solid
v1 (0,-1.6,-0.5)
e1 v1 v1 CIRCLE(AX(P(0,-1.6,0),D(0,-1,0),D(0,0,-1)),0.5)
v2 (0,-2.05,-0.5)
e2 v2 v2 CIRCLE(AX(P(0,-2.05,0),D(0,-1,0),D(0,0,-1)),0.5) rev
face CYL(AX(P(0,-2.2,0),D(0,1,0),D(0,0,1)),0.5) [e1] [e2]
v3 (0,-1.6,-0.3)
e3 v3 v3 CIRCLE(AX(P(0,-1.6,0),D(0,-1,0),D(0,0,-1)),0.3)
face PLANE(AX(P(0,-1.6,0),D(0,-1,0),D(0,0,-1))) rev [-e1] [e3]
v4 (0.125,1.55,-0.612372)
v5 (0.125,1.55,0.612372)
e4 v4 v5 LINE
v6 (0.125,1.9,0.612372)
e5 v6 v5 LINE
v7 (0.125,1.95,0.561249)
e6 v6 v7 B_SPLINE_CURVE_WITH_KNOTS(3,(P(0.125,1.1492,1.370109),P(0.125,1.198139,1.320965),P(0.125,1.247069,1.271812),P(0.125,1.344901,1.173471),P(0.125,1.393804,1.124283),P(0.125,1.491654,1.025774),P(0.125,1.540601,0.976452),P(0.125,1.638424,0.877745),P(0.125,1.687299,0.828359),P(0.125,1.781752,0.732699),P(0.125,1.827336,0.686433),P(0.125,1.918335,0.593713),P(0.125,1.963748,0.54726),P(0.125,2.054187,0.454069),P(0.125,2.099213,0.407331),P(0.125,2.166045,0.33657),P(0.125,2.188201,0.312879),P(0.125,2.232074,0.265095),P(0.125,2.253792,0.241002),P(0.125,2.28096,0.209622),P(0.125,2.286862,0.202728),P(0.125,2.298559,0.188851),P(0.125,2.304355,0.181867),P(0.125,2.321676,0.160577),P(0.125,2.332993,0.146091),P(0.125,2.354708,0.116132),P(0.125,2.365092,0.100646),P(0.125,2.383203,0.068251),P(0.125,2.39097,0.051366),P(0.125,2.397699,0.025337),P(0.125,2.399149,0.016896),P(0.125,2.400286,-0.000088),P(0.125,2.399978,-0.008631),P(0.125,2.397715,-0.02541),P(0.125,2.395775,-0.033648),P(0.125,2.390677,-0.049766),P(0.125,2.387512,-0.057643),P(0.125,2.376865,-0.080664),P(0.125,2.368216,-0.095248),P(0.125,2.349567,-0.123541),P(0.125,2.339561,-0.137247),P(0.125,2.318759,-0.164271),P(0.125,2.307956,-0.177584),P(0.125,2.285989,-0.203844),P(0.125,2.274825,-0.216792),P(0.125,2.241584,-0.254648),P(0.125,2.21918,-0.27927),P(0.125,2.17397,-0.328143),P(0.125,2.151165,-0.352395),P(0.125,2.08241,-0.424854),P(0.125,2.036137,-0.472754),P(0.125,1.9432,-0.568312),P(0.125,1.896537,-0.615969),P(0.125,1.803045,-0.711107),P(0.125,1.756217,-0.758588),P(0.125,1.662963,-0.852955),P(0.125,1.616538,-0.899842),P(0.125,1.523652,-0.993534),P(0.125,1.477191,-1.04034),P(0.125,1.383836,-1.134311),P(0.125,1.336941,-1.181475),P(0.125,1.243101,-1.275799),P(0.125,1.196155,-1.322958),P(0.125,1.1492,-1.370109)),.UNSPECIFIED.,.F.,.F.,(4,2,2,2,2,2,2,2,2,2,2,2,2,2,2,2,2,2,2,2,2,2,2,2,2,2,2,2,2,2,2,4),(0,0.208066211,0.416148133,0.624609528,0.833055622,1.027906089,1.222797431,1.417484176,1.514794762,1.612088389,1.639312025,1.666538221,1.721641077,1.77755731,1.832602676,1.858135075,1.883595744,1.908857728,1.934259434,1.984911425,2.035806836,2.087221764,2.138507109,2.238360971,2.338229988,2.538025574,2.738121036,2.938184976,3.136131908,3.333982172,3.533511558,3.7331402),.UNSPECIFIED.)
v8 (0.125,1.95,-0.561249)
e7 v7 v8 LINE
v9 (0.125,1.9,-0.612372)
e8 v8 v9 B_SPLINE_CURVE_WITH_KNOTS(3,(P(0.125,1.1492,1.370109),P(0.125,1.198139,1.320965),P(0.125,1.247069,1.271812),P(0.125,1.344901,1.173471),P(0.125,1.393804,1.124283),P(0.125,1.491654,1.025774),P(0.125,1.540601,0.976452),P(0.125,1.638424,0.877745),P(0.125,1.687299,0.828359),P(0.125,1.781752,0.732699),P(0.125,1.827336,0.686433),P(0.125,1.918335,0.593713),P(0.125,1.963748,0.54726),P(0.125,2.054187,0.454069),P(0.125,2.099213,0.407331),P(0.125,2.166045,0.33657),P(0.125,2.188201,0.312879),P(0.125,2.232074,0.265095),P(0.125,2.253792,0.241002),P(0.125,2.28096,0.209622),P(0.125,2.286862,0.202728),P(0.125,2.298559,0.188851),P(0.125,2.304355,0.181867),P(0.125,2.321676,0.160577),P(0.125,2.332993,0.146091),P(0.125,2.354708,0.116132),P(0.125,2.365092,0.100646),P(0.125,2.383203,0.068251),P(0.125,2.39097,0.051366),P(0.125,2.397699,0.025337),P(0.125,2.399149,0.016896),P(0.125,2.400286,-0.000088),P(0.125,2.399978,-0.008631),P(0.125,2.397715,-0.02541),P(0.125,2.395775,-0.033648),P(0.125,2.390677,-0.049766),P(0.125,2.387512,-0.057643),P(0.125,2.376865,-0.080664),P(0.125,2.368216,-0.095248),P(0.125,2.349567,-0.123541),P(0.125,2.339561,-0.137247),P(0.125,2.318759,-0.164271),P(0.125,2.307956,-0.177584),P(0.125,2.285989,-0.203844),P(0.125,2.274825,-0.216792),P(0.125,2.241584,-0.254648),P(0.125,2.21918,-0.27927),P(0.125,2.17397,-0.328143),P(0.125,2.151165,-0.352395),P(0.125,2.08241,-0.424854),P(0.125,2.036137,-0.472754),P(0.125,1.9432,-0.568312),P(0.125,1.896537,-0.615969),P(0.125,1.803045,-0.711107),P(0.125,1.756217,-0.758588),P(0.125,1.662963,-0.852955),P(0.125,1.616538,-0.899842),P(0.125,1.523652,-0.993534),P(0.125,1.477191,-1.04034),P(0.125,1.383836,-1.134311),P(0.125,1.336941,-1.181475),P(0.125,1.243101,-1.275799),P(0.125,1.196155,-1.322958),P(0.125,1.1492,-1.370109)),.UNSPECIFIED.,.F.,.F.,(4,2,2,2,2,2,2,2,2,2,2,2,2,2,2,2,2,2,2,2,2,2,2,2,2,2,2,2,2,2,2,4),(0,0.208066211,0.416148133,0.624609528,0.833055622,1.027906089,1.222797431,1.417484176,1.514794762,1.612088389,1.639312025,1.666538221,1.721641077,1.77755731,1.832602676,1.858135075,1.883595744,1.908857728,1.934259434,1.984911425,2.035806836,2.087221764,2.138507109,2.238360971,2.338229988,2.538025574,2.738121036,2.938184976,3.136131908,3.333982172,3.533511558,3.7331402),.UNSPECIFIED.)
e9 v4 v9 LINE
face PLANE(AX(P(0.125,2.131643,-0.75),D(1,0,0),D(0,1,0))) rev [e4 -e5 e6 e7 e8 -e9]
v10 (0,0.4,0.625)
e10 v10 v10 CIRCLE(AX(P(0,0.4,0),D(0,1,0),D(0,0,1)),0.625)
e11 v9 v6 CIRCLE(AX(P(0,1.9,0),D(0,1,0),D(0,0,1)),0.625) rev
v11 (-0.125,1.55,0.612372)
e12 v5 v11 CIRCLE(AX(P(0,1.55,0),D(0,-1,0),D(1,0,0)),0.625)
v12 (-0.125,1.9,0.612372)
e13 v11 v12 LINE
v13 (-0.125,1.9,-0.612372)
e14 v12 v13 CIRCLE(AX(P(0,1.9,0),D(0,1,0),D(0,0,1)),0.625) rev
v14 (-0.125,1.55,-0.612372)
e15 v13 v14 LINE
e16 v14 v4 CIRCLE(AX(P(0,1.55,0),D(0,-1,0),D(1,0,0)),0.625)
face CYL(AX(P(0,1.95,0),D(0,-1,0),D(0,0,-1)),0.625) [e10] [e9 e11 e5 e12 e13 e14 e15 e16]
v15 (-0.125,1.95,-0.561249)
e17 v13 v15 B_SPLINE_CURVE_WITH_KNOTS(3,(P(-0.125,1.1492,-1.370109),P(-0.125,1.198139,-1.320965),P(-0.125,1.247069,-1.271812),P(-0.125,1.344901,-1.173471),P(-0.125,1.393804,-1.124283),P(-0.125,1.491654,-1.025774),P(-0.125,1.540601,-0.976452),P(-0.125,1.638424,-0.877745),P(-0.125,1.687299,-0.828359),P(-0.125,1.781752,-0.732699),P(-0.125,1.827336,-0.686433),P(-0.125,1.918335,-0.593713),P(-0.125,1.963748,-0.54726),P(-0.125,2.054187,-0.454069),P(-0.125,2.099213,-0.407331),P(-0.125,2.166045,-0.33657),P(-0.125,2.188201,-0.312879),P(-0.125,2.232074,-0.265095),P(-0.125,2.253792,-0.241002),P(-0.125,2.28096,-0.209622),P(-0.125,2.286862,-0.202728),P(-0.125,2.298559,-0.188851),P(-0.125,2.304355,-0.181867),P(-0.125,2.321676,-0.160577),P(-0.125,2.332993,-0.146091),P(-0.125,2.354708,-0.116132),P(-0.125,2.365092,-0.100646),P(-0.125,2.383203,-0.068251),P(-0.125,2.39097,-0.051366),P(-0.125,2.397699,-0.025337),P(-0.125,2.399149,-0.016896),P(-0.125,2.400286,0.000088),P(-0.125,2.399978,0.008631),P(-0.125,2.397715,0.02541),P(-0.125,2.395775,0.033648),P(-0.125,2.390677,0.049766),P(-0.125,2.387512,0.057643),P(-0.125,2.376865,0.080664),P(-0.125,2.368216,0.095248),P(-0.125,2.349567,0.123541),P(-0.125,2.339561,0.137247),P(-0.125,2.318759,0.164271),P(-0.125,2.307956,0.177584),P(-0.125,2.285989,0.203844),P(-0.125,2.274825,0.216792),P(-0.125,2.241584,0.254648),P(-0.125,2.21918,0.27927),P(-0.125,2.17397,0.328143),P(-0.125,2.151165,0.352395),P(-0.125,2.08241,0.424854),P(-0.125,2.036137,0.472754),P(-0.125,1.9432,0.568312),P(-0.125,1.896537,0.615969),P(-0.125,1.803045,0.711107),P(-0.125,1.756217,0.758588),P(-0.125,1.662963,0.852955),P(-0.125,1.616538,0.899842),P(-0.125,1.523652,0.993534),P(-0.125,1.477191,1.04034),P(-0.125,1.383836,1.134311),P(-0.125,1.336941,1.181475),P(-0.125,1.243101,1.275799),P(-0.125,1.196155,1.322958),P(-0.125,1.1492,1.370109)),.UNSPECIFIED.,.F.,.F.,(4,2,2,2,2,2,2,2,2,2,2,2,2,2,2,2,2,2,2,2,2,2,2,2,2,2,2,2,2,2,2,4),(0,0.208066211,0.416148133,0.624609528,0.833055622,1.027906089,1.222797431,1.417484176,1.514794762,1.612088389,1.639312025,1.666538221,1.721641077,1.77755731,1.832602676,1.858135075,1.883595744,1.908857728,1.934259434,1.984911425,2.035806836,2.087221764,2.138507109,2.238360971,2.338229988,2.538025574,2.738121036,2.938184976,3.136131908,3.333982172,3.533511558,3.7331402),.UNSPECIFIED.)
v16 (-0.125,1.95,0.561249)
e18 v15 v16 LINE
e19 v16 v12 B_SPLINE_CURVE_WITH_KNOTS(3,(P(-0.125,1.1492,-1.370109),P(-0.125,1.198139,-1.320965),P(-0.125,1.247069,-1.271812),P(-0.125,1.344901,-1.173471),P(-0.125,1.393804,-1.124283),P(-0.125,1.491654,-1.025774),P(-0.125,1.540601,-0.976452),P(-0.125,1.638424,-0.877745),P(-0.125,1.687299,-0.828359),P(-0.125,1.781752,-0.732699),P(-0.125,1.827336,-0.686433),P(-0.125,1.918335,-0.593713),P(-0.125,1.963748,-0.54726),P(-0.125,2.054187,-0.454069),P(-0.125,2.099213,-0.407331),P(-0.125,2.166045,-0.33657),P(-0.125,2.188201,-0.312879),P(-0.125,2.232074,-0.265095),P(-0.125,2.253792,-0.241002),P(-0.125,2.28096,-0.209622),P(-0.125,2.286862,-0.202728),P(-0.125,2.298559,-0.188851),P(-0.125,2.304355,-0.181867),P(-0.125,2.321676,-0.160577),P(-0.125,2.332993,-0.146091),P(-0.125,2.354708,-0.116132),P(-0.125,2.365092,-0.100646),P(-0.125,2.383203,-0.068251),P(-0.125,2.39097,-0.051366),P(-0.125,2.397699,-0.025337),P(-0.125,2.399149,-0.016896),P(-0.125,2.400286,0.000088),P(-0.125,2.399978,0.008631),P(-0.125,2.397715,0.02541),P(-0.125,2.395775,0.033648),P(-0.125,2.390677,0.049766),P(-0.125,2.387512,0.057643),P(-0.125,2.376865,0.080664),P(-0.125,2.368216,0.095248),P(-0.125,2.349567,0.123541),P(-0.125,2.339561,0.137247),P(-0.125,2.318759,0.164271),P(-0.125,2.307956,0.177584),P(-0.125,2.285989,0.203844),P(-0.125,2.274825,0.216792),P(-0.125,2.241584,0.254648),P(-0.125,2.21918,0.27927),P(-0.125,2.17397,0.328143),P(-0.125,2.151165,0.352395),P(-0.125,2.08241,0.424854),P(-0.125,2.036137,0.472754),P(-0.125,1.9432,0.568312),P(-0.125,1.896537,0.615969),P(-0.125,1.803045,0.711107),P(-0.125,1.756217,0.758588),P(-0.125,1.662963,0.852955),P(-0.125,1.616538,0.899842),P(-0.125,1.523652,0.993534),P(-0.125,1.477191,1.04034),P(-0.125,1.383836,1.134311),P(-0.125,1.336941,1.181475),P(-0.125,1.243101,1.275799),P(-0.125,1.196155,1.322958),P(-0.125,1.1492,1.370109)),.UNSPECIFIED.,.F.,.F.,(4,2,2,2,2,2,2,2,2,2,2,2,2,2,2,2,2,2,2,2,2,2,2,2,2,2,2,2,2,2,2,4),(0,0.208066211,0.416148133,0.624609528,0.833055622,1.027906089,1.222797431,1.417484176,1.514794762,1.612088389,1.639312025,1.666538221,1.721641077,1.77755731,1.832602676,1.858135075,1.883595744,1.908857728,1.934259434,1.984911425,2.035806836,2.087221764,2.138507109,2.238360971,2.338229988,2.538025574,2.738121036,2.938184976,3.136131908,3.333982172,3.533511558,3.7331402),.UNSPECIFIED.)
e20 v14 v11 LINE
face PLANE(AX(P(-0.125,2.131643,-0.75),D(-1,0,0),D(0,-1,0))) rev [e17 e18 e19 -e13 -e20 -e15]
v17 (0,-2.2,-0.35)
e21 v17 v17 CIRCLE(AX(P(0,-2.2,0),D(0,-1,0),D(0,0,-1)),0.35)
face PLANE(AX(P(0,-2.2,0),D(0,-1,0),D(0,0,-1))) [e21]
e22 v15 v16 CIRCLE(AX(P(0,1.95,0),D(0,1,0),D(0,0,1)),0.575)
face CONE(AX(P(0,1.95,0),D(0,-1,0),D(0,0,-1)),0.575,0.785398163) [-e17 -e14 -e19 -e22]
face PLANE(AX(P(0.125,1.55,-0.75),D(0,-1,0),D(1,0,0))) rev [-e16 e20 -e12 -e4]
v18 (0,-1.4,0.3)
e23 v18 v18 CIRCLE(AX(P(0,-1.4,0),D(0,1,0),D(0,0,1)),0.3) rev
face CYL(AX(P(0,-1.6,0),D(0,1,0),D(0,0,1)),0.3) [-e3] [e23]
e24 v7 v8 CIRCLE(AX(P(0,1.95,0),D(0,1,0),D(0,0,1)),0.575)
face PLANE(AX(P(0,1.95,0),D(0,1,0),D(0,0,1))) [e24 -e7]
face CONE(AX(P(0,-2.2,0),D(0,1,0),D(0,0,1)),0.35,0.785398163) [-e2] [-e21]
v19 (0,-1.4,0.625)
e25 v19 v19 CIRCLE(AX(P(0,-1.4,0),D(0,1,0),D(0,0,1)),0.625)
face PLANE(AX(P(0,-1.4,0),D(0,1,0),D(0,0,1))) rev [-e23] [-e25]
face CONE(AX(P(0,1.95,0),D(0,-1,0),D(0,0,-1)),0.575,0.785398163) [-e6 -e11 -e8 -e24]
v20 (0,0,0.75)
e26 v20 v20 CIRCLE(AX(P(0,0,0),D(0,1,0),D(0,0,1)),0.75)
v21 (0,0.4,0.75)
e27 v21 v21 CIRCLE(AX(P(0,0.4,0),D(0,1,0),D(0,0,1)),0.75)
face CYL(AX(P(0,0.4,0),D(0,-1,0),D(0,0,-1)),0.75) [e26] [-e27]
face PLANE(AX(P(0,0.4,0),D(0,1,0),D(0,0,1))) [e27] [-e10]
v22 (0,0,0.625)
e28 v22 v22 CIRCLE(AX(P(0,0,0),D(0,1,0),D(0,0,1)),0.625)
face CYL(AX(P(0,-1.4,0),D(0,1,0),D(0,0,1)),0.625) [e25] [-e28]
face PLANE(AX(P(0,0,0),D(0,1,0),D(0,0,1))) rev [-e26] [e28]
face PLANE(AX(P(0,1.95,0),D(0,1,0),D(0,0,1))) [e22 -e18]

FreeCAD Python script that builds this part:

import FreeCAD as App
import Part
import Sketcher
Q = App.Units.Quantity


def edges_at(feature, points):
    """Names of the edges that pass closest to the given points."""
    edges = feature.Shape.Edges
    near = lambda p: min(range(len(edges)), key=lambda i: edges[i].distToShape(Part.Vertex(*p))[0])
    return sorted({f"Edge{near(p) + 1}" for p in points})

doc = App.newDocument("Part")
params = doc.addObject("Spreadsheet::Sheet", "Params")
for row, (alias, value) in enumerate([
    ("sketch1_diameter", "1.5 mm"),
    ("pad1_length", "0.4 mm"),
    ("sketch2_diameter", "1.25 mm"),
    ("pad2_length", "1.55 mm"),
    ("sketch3_diameter", "1.25 mm"),
    ("pad3_length", "1.4 mm"),
    ("sketch4_diameter", "0.6 mm"),
    ("pad4_length", "0.2 mm"),
    ("sketch5_diameter", "1 mm"),
    ("pad5_length", "0.6 mm"),
    ("chamfer_size", "0.05 mm"),
    ("chamfer2_size", "0.15 mm"),
    ("sketch6_width", "0.25 mm"),
], start=1):
    params.set(f"A{row}", alias)
    params.set(f"B{row}", "=" + value)
    params.setAlias(f"B{row}", alias)

body = doc.addObject("PartDesign::Body", "Body")

sketch1 = body.newObject("Sketcher::SketchObject", "Sketch")
sketch1.AttachmentSupport = (doc.getObject("XZ_Plane"), [""])
sketch1.MapMode = "FlatFace"
sketch1.addGeometry(Part.Circle(App.Vector(0, 0, 0), App.Vector(0, 0, 1), 0.75), False)
sketch1.addConstraint([
    Sketcher.Constraint("Coincident", 0, 3, -1, 1),
    Sketcher.Constraint("Diameter", 0, Q("1.5 mm")),
])
sketch1.setExpression("Constraints[1]", "Params.sketch1_diameter")
pad1 = body.newObject("PartDesign::Pad", "Pad")
pad1.Profile = sketch1
pad1.setExpression("Length", "Params.pad1_length")
pad1.Reversed = True

sketch2 = body.newObject("Sketcher::SketchObject", "Sketch001")
sketch2.AttachmentSupport = (doc.getObject("XZ_Plane"), [""])
sketch2.MapMode = "FlatFace"
sketch2.AttachmentOffset = App.Placement(App.Vector(0, 0, -0.4), App.Rotation())
sketch2.addGeometry(Part.Circle(App.Vector(0, 0, 0), App.Vector(0, 0, 1), 0.625), False)
sketch2.addConstraint([
    Sketcher.Constraint("Coincident", 0, 3, -1, 1),
    Sketcher.Constraint("Diameter", 0, Q("1.25 mm")),
])
sketch2.setExpression("Constraints[1]", "Params.sketch2_diameter")
pad2 = body.newObject("PartDesign::Pad", "Pad001")
pad2.Profile = sketch2
pad2.setExpression("Length", "Params.pad2_length")
pad2.Reversed = True

sketch3 = body.newObject("Sketcher::SketchObject", "Sketch002")
sketch3.AttachmentSupport = (doc.getObject("XZ_Plane"), [""])
sketch3.MapMode = "FlatFace"
sketch3.addGeometry(Part.Circle(App.Vector(0, 0, 0), App.Vector(0, 0, 1), 0.625), False)
sketch3.addConstraint([
    Sketcher.Constraint("Coincident", 0, 3, -1, 1),
    Sketcher.Constraint("Diameter", 0, Q("1.25 mm")),
])
sketch3.setExpression("Constraints[1]", "Params.sketch3_diameter")
pad3 = body.newObject("PartDesign::Pad", "Pad002")
pad3.Profile = sketch3
pad3.setExpression("Length", "Params.pad3_length")

sketch4 = body.newObject("Sketcher::SketchObject", "Sketch003")
sketch4.AttachmentSupport = (doc.getObject("XZ_Plane"), [""])
sketch4.MapMode = "FlatFace"
sketch4.AttachmentOffset = App.Placement(App.Vector(0, 0, 1.4), App.Rotation())
sketch4.addGeometry(Part.Circle(App.Vector(0, 0, 0), App.Vector(0, 0, 1), 0.3), False)
sketch4.addConstraint([
    Sketcher.Constraint("Coincident", 0, 3, -1, 1),
    Sketcher.Constraint("Diameter", 0, Q("0.6 mm")),
])
sketch4.setExpression("Constraints[1]", "Params.sketch4_diameter")
pad4 = body.newObject("PartDesign::Pad", "Pad003")
pad4.Profile = sketch4
pad4.setExpression("Length", "Params.pad4_length")

sketch5 = body.newObject("Sketcher::SketchObject", "Sketch004")
sketch5.AttachmentSupport = (doc.getObject("XZ_Plane"), [""])
sketch5.MapMode = "FlatFace"
sketch5.AttachmentOffset = App.Placement(App.Vector(0, 0, 1.6), App.Rotation())
sketch5.addGeometry(Part.Circle(App.Vector(0, 0, 0), App.Vector(0, 0, 1), 0.5), False)
sketch5.addConstraint([
    Sketcher.Constraint("Coincident", 0, 3, -1, 1),
    Sketcher.Constraint("Diameter", 0, Q("1 mm")),
])
sketch5.setExpression("Constraints[1]", "Params.sketch5_diameter")
pad5 = body.newObject("PartDesign::Pad", "Pad004")
pad5.Profile = sketch5
pad5.setExpression("Length", "Params.pad5_length")
doc.recompute()

chamfer = body.newObject("PartDesign::Chamfer", "Chamfer")
chamfer.Base = (pad5, edges_at(pad5, [(-0.625, 1.95, 0)]))
chamfer.setExpression("Size", "Params.chamfer_size")
doc.recompute()

chamfer2 = body.newObject("PartDesign::Chamfer", "Chamfer001")
chamfer2.Base = (chamfer, edges_at(chamfer, [(-0.5, -2.2, 0)]))
chamfer2.setExpression("Size", "Params.chamfer2_size")

sketch6 = body.newObject("Sketcher::SketchObject", "Sketch005")
sketch6.AttachmentSupport = (doc.getObject("XY_Plane"), [""])
sketch6.MapMode = "FlatFace"
sketch6.addGeometry([
    Part.LineSegment(App.Vector(0.125, 2.131643, 0), App.Vector(-0.125, 2.131643, 0)),
    Part.LineSegment(App.Vector(-0.125, 2.131643, 0), App.Vector(-0.125, 1.55, 0)),
    Part.LineSegment(App.Vector(-0.125, 1.55, 0), App.Vector(0.125, 1.55, 0)),
    Part.LineSegment(App.Vector(0.125, 1.55, 0), App.Vector(0.125, 2.131643, 0)),
], False)
sketch6.addConstraint([
    Sketcher.Constraint("Coincident", 0, 2, 1, 1),
    Sketcher.Constraint("Coincident", 1, 2, 2, 1),
    Sketcher.Constraint("Coincident", 2, 2, 3, 1),
    Sketcher.Constraint("Coincident", 3, 2, 0, 1),
    Sketcher.Constraint("Horizontal", 0),
    Sketcher.Constraint("Vertical", 1),
    Sketcher.Constraint("Horizontal", 2),
    Sketcher.Constraint("Vertical", 3),
    Sketcher.Constraint("DistanceX", 0, 2, 0, 1, Q("0.25 mm")),
    Sketcher.Constraint("DistanceY", -1, 1, 1, 2, Q("1.55 mm")),
    Sketcher.Constraint("DistanceX", 0, 2, -1, 1, Q("0.125 mm")),
    Sketcher.Constraint("DistanceY", 1, 2, 1, 1, Q("0.581643 mm")),
])
sketch6.setExpression("Constraints[8]", "Params.sketch6_width")
pocket1 = body.newObject("PartDesign::Pocket", "Pocket")
pocket1.Profile = sketch6
pocket1.Type = "ThroughAll"
pocket1.Midplane = True

doc.recompute()
